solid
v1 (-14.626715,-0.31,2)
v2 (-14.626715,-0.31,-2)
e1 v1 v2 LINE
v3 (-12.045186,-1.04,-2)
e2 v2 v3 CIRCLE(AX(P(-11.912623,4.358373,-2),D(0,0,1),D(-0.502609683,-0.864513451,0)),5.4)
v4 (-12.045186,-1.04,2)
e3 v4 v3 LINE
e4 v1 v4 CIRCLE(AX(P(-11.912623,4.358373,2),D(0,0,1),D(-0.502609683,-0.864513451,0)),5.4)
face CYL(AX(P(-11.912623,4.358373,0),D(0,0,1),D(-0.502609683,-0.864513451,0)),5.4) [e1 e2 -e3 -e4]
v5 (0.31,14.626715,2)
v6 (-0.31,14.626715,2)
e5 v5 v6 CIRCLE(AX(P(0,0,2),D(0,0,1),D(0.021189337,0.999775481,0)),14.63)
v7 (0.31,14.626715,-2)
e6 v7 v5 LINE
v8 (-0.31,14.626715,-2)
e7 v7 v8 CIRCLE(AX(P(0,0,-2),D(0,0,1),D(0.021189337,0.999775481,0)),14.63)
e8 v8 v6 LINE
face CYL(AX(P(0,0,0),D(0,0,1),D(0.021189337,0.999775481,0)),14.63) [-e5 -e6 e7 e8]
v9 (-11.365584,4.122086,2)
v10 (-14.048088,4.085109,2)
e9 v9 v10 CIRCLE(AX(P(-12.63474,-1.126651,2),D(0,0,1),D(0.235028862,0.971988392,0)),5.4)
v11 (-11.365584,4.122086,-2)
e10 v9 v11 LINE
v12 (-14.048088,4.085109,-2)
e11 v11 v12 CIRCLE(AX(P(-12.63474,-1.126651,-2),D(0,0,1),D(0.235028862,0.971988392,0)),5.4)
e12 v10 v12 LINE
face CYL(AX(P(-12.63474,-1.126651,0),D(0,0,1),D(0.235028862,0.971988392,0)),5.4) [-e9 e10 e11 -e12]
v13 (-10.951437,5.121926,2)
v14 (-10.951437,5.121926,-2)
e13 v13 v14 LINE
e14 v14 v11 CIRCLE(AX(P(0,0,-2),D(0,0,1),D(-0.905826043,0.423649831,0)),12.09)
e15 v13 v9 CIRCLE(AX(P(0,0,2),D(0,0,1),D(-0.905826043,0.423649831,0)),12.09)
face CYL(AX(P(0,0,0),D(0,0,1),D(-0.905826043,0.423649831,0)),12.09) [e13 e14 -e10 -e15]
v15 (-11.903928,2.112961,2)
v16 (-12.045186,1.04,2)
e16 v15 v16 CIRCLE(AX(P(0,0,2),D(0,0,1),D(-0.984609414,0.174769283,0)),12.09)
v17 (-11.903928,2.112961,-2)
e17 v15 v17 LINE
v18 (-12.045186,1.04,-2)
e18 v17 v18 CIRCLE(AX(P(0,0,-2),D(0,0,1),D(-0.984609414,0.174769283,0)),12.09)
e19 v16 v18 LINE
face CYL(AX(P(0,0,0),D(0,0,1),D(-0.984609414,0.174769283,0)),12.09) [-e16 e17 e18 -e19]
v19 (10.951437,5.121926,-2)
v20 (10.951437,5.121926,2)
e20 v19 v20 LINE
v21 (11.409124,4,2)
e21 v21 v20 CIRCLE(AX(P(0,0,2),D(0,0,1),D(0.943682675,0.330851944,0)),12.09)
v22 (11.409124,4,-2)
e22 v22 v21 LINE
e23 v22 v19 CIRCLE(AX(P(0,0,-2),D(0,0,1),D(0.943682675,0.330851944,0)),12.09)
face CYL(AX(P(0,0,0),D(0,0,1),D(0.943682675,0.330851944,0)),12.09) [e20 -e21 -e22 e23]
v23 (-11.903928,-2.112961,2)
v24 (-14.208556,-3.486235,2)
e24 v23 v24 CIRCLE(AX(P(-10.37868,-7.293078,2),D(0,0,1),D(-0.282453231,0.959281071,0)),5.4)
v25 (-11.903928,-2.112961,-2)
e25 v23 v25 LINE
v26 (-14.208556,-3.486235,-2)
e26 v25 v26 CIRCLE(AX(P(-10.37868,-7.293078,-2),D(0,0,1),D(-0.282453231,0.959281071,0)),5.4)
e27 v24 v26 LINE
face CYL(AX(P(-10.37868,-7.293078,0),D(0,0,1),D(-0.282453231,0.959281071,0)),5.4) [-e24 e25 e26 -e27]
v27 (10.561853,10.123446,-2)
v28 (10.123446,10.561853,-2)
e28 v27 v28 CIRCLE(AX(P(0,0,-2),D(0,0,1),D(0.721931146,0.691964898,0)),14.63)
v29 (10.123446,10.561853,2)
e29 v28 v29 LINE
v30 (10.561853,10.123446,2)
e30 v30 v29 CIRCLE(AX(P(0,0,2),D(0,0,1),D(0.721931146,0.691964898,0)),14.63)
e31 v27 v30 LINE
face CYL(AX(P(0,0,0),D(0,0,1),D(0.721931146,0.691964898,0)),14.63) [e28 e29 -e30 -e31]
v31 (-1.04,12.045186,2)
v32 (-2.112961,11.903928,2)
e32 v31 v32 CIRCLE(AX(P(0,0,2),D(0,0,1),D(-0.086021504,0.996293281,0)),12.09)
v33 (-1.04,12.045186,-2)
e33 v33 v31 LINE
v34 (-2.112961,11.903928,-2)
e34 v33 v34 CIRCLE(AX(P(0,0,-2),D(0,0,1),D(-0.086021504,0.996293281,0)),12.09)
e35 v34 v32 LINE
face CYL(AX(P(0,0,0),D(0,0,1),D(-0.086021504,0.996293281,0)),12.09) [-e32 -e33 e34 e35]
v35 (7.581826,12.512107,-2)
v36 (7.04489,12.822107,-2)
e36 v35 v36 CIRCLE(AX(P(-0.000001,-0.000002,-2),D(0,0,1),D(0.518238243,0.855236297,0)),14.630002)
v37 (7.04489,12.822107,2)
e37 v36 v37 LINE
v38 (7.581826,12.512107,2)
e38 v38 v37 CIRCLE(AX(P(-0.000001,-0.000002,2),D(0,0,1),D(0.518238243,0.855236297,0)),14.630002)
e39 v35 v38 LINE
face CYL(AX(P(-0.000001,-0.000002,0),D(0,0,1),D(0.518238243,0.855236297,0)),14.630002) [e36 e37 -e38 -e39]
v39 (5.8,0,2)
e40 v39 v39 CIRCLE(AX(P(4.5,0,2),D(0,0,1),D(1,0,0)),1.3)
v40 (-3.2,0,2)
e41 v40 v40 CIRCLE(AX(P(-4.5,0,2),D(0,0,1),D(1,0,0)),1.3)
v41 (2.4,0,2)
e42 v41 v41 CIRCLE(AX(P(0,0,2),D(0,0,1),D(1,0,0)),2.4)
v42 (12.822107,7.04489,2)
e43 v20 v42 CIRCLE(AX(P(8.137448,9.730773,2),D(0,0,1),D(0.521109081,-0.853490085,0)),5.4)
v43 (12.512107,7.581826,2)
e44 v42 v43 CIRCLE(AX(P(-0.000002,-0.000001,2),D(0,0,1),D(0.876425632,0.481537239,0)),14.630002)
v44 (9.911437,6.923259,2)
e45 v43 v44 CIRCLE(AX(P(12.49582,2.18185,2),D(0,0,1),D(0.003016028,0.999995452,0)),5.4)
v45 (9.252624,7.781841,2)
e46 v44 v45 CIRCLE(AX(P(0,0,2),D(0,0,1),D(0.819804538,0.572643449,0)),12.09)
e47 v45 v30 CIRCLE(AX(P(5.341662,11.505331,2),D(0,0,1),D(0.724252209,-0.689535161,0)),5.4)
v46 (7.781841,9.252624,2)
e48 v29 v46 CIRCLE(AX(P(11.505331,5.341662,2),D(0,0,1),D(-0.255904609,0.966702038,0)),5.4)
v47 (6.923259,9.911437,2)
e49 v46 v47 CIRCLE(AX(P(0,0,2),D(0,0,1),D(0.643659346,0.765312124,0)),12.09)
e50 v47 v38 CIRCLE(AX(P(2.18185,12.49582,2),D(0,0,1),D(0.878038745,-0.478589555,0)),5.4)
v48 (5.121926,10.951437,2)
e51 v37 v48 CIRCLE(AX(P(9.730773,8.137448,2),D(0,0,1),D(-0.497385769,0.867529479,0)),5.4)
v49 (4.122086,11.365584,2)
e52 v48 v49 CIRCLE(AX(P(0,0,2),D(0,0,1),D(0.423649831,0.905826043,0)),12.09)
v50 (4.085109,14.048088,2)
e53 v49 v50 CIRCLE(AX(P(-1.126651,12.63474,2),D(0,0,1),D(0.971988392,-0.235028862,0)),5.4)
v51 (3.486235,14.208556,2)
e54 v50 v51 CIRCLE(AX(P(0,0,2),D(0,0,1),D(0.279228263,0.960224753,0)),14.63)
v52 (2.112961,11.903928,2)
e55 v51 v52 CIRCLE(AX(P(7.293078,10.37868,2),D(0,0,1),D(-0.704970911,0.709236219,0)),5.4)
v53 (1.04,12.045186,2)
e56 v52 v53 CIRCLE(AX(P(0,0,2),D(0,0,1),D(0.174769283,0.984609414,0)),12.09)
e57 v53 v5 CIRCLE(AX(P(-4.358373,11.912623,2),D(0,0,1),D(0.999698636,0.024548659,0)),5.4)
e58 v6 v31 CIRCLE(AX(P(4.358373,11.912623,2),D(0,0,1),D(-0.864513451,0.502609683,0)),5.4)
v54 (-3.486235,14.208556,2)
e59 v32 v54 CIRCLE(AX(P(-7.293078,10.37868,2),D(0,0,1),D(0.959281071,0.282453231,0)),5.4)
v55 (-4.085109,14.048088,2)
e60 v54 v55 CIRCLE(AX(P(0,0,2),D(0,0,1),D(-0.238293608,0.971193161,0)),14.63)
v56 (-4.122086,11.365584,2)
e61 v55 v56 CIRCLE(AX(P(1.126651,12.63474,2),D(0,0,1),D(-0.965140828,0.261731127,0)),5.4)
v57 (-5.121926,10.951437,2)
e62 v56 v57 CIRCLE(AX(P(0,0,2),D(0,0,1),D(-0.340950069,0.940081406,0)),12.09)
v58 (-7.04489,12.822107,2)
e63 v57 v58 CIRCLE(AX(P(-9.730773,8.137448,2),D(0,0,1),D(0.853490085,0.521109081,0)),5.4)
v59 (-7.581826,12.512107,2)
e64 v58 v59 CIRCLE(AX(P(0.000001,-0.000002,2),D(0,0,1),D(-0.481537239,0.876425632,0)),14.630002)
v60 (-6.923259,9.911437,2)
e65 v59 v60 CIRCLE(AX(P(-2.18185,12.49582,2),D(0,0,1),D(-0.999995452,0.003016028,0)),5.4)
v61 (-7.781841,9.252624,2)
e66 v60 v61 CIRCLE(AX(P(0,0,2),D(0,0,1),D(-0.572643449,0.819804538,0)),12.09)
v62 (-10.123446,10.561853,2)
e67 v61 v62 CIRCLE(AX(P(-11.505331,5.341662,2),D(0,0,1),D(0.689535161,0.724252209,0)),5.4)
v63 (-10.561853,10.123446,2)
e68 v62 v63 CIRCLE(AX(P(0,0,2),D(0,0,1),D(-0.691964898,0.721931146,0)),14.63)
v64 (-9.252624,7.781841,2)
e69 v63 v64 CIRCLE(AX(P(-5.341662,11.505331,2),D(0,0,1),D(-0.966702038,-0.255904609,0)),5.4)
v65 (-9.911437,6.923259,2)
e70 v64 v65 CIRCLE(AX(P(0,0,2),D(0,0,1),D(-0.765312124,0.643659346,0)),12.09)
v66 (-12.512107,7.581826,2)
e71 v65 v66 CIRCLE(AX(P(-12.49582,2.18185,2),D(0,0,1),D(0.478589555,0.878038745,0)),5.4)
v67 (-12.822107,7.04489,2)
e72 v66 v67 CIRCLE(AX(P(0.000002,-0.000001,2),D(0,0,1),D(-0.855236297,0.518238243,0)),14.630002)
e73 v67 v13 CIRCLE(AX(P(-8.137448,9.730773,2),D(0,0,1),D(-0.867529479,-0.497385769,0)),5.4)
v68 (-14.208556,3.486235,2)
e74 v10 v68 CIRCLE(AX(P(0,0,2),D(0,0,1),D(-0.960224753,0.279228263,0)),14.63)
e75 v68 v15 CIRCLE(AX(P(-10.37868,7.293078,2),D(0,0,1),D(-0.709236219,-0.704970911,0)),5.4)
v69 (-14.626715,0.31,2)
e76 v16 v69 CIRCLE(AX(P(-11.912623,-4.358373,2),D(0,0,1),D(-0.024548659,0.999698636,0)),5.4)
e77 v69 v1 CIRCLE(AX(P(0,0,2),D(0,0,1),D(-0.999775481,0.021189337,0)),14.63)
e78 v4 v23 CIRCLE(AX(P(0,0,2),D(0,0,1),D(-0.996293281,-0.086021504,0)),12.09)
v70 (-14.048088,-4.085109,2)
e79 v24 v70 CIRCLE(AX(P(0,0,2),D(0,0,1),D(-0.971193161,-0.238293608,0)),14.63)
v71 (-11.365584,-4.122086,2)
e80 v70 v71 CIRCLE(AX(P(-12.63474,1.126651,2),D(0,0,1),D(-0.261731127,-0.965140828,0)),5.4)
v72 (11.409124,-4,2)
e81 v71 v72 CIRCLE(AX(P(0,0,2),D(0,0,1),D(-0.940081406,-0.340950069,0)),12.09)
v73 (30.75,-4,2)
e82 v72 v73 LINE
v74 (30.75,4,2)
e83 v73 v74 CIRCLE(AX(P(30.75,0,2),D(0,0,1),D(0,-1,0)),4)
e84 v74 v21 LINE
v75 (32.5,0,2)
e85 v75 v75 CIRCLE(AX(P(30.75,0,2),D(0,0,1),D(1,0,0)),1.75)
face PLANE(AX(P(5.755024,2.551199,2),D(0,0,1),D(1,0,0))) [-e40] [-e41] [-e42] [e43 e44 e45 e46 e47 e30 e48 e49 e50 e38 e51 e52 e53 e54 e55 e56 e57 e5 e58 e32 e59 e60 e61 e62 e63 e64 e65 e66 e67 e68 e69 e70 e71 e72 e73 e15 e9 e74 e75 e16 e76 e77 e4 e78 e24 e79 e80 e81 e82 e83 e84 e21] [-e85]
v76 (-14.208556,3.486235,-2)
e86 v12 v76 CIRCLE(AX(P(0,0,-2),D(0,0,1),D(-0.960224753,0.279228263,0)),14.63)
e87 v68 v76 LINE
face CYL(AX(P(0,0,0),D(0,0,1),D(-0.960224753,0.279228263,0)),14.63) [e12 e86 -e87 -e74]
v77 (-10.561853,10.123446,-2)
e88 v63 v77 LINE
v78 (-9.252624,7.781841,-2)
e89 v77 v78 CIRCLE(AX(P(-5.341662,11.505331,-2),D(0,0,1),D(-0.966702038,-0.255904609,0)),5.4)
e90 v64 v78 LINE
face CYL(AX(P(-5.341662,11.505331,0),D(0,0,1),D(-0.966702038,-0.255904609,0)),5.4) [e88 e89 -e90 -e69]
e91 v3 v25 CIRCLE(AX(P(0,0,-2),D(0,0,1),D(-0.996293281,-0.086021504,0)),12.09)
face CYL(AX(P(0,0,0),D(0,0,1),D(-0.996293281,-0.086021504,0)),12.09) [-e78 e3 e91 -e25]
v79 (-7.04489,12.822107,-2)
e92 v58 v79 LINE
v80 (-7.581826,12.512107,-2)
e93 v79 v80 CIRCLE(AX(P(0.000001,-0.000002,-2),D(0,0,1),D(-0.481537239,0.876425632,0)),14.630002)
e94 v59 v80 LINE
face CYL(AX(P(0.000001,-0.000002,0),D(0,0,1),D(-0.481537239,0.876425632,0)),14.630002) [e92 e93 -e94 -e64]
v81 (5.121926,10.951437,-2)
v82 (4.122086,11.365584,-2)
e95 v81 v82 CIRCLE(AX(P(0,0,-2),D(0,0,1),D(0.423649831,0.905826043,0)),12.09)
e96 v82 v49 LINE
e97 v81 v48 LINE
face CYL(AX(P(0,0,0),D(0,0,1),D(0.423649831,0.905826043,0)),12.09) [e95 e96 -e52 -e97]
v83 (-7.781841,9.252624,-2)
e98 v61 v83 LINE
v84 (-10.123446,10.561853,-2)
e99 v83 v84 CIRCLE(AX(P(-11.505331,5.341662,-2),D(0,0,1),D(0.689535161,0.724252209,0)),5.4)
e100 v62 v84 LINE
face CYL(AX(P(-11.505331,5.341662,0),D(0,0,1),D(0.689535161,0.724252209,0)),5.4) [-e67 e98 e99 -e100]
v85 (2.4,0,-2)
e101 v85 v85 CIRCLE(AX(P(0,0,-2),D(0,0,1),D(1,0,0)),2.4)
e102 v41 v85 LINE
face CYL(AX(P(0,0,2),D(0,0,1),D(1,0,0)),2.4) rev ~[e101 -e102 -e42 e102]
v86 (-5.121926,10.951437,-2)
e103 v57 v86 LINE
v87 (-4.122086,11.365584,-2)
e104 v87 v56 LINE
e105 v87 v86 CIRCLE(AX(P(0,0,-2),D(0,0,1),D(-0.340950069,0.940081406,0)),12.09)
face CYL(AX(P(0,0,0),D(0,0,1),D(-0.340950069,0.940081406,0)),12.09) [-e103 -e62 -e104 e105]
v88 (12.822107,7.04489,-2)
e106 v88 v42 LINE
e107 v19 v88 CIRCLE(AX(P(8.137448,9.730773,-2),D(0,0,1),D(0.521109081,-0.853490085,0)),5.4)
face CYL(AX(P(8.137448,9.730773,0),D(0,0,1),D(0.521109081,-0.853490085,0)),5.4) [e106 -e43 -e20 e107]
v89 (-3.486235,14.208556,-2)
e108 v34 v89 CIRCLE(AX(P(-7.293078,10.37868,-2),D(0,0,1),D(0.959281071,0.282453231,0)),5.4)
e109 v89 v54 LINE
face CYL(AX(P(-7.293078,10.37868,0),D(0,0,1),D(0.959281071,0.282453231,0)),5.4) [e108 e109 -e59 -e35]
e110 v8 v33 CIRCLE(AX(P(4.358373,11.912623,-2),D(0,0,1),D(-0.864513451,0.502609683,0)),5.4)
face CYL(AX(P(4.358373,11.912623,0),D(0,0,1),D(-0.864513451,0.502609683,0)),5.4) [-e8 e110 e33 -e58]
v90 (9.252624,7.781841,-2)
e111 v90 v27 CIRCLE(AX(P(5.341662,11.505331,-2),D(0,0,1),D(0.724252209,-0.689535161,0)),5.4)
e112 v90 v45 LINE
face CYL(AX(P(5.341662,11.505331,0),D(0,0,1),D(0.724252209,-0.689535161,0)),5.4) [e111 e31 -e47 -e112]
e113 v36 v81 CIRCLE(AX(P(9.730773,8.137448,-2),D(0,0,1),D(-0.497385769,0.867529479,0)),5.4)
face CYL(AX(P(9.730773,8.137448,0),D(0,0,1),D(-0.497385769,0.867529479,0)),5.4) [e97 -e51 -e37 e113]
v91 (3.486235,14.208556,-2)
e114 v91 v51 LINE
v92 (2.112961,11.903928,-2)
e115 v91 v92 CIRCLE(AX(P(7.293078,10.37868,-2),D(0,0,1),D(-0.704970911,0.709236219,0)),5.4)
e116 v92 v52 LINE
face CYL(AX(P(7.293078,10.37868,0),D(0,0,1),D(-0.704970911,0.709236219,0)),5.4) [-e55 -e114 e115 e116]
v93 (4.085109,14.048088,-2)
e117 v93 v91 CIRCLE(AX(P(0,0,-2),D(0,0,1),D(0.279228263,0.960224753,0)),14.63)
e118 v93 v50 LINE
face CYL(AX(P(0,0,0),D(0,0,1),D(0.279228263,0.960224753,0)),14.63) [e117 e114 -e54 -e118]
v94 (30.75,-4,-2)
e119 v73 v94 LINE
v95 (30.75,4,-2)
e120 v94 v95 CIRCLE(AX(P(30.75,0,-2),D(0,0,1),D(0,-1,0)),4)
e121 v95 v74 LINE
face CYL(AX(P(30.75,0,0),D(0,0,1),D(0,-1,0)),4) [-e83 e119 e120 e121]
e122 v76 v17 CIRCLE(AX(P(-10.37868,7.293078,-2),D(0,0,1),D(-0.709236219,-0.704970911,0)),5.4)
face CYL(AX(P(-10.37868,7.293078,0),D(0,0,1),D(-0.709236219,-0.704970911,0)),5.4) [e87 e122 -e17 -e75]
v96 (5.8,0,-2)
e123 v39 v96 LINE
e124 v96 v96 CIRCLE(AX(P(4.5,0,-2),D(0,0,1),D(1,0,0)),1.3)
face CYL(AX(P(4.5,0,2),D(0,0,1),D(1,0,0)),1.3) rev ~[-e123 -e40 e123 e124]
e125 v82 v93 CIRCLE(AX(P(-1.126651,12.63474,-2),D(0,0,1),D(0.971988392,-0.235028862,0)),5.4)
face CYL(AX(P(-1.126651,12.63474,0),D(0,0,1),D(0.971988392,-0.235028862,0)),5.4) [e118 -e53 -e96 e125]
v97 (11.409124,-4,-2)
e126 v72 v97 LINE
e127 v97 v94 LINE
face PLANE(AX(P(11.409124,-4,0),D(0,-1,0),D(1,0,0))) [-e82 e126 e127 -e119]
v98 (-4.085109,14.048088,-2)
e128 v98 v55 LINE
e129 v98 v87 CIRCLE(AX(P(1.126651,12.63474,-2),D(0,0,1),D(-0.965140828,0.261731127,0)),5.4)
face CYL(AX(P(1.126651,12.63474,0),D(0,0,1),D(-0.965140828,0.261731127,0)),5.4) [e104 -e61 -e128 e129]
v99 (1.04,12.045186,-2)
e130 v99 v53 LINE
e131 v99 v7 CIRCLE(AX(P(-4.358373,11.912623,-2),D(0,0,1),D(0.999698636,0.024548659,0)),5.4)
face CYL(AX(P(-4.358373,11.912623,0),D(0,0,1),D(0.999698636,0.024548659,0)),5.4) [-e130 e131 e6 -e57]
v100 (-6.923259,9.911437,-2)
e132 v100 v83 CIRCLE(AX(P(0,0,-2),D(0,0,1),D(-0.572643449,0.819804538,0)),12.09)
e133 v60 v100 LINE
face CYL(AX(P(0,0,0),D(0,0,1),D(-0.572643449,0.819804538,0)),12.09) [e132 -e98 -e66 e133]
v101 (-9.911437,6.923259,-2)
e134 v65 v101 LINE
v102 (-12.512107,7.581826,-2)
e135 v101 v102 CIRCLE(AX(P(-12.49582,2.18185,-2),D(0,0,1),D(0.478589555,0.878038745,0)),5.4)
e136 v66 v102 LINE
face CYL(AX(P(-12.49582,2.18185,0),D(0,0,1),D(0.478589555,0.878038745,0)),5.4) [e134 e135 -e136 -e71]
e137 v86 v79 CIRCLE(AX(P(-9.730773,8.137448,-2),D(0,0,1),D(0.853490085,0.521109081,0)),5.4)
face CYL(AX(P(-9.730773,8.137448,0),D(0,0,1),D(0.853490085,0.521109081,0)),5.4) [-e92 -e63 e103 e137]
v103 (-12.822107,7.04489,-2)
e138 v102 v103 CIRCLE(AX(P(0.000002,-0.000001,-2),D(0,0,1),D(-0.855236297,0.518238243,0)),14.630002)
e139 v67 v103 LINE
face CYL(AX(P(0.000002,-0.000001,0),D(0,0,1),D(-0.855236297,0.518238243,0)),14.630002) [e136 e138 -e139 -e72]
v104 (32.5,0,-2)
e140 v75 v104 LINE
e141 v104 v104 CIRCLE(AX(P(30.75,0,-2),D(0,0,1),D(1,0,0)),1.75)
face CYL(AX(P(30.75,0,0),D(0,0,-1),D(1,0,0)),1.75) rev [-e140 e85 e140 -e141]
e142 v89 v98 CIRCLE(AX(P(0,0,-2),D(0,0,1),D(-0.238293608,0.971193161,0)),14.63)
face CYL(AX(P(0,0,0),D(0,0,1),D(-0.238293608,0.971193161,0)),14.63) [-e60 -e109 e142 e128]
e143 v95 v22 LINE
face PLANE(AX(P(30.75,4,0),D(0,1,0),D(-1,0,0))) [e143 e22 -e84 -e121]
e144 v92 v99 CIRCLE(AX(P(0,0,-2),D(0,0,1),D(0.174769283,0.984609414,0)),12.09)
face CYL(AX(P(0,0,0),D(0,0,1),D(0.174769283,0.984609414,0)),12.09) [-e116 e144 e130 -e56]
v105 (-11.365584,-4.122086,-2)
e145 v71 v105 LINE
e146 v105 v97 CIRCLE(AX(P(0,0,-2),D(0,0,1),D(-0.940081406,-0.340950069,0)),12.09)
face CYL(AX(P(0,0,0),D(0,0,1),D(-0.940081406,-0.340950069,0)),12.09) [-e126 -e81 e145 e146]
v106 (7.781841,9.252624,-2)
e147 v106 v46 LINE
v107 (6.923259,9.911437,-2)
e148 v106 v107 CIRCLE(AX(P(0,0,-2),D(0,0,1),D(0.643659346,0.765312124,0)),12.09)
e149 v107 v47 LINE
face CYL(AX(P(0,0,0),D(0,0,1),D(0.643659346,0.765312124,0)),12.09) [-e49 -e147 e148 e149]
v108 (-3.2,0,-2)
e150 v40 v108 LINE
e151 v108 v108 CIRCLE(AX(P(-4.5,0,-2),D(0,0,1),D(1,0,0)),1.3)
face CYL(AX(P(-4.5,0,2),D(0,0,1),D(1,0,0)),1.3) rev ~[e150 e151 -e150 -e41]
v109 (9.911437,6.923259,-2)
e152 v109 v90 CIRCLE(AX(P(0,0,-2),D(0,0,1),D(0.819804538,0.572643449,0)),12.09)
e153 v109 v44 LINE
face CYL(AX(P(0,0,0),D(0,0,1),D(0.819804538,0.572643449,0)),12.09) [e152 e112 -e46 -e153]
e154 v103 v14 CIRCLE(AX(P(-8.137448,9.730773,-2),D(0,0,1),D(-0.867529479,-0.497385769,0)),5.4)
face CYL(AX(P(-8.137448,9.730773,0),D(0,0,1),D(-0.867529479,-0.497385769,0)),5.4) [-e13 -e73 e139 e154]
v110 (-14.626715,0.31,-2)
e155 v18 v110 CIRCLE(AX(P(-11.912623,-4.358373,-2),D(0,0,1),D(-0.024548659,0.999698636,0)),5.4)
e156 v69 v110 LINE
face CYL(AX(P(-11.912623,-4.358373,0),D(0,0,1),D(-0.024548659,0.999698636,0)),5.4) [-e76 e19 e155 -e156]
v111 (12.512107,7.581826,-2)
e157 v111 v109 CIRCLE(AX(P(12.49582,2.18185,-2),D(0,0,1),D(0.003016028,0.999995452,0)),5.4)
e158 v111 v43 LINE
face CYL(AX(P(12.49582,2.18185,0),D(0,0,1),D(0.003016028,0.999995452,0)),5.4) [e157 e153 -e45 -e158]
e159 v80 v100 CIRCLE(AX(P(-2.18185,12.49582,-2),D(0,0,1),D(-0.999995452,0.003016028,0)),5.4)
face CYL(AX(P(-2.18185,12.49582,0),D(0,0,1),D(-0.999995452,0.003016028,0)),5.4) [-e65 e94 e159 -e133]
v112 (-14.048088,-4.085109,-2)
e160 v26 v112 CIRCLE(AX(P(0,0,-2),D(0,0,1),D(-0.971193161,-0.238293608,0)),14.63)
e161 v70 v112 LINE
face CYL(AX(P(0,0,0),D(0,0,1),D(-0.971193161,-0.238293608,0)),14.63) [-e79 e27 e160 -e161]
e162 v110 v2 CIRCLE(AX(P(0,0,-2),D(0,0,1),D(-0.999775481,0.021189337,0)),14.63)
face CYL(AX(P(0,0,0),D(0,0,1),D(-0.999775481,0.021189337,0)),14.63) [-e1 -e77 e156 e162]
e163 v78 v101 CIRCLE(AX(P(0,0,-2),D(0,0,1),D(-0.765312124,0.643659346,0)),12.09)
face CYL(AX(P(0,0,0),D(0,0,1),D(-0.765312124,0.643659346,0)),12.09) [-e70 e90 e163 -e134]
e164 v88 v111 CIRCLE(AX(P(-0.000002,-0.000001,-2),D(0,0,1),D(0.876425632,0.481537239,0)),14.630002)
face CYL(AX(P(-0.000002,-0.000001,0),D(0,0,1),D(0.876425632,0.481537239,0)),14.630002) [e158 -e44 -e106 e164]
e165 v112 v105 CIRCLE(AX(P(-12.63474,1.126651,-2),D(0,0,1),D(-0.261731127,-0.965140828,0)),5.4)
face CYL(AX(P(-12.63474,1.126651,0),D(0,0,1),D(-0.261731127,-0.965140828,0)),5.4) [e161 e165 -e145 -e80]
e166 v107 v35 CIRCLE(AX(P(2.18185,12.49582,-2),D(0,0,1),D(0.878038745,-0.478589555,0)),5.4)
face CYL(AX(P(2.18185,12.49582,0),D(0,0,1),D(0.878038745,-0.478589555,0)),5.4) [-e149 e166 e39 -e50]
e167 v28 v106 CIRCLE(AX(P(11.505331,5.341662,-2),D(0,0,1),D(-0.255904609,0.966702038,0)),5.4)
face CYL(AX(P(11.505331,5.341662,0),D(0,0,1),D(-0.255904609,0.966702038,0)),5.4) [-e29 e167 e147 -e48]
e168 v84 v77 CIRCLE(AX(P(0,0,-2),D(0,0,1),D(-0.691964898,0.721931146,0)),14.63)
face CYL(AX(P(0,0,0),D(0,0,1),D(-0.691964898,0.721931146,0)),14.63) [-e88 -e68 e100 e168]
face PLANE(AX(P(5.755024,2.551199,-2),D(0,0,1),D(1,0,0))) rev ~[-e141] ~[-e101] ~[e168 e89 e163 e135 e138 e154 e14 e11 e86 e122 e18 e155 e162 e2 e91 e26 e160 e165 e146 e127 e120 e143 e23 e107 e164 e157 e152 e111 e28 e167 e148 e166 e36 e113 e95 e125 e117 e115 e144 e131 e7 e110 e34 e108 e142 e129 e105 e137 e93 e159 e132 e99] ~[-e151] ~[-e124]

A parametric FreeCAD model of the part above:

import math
import FreeCAD as App
import Part
import Sketcher

doc = App.newDocument("Part")
body = doc.addObject("PartDesign::Body", "Body")

# Sketch on XY plane
sketch1 = body.newObject("Sketcher::SketchObject", "Sketch")
sketch1.AttachmentSupport = (doc.getObject("XY_Plane"), [""])
sketch1.MapMode = "FlatFace"
sketch1.addGeometry(Part.ArcOfCircle(Part.Circle(App.Vector(30.8, 0, 0), App.Vector(0, 0, 1), 4), math.radians(-90), math.radians(90)), False)
sketch1.addGeometry(Part.LineSegment(App.Vector(30.8, 4, 0), App.Vector(11.4, 4, 0)), False)
sketch1.addGeometry(Part.ArcOfCircle(Part.Circle(App.Vector(0, 0, 0), App.Vector(0, 0, 1), 12.1), math.radians(19.32), math.radians(25.07)), False)
sketch1.addGeometry(Part.ArcOfCircle(Part.Circle(App.Vector(8.1, 9.7, 0), App.Vector(0, 0, 1), 5.4), math.radians(-59), math.radians(-30)), False)
sketch1.addGeometry(Part.ArcOfCircle(Part.Circle(App.Vector(0, 0, 0), App.Vector(0, 0, 1), 14.6), math.radians(28.79), math.radians(31.21)), False)
sketch1.addGeometry(Part.ArcOfCircle(Part.Circle(App.Vector(12.5, 2.2, 0), App.Vector(0, 0, 1), 5.4), math.radians(90), math.radians(119)), False)
sketch1.addGeometry(Part.ArcOfCircle(Part.Circle(App.Vector(0, 0, 0), App.Vector(0, 0, 1), 12.1), math.radians(34.93), math.radians(40.07)), False)
sketch1.addGeometry(Part.ArcOfCircle(Part.Circle(App.Vector(5.3, 11.5, 0), App.Vector(0, 0, 1), 5.4), math.radians(-44), math.radians(-15)), False)
sketch1.addGeometry(Part.ArcOfCircle(Part.Circle(App.Vector(0, 0, 0), App.Vector(0, 0, 1), 14.6), math.radians(43.79), math.radians(46.21)), False)
sketch1.addGeometry(Part.ArcOfCircle(Part.Circle(App.Vector(11.5, 5.3, 0), App.Vector(0, 0, 1), 5.4), math.radians(105), math.radians(134)), False)
sketch1.addGeometry(Part.ArcOfCircle(Part.Circle(App.Vector(0, 0, 0), App.Vector(0, 0, 1), 12.1), math.radians(49.93), math.radians(55.07)), False)
sketch1.addGeometry(Part.ArcOfCircle(Part.Circle(App.Vector(2.2, 12.5, 0), App.Vector(0, 0, 1), 5.4), math.radians(-29), math.radians(0)), False)
sketch1.addGeometry(Part.ArcOfCircle(Part.Circle(App.Vector(0, 0, 0), App.Vector(0, 0, 1), 14.6), math.radians(58.79), math.radians(61.21)), False)
sketch1.addGeometry(Part.ArcOfCircle(Part.Circle(App.Vector(9.7, 8.1, 0), App.Vector(0, 0, 1), 5.4), math.radians(120), math.radians(149)), False)
sketch1.addGeometry(Part.ArcOfCircle(Part.Circle(App.Vector(0, 0, 0), App.Vector(0, 0, 1), 12.1), math.radians(64.93), math.radians(70.07)), False)
sketch1.addGeometry(Part.ArcOfCircle(Part.Circle(App.Vector(-1.1, 12.6, 0), App.Vector(0, 0, 1), 5.4), math.radians(-14), math.radians(15)), False)
sketch1.addGeometry(Part.ArcOfCircle(Part.Circle(App.Vector(0, 0, 0), App.Vector(0, 0, 1), 14.6), math.radians(73.79), math.radians(76.21)), False)
sketch1.addGeometry(Part.ArcOfCircle(Part.Circle(App.Vector(7.3, 10.4, 0), App.Vector(0, 0, 1), 5.4), math.radians(135), math.radians(164)), False)
sketch1.addGeometry(Part.ArcOfCircle(Part.Circle(App.Vector(0, 0, 0), App.Vector(0, 0, 1), 12.1), math.radians(79.93), math.radians(85.07)), False)
sketch1.addGeometry(Part.ArcOfCircle(Part.Circle(App.Vector(-4.4, 11.9, 0), App.Vector(0, 0, 1), 5.4), math.radians(1), math.radians(30)), False)
sketch1.addGeometry(Part.ArcOfCircle(Part.Circle(App.Vector(0, 0, 0), App.Vector(0, 0, 1), 14.6), math.radians(88.79), math.radians(91.21)), False)
sketch1.addGeometry(Part.ArcOfCircle(Part.Circle(App.Vector(4.4, 11.9, 0), App.Vector(0, 0, 1), 5.4), math.radians(150), math.radians(179)), False)
sketch1.addGeometry(Part.ArcOfCircle(Part.Circle(App.Vector(0, 0, 0), App.Vector(0, 0, 1), 12.1), math.radians(94.93), math.radians(100.07)), False)
sketch1.addGeometry(Part.ArcOfCircle(Part.Circle(App.Vector(-7.3, 10.4, 0), App.Vector(0, 0, 1), 5.4), math.radians(16), math.radians(45)), False)
sketch1.addGeometry(Part.ArcOfCircle(Part.Circle(App.Vector(0, 0, 0), App.Vector(0, 0, 1), 14.6), math.radians(103.79), math.radians(106.21)), False)
sketch1.addGeometry(Part.ArcOfCircle(Part.Circle(App.Vector(1.1, 12.6, 0), App.Vector(0, 0, 1), 5.4), math.radians(165), math.radians(194)), False)
sketch1.addGeometry(Part.ArcOfCircle(Part.Circle(App.Vector(0, 0, 0), App.Vector(0, 0, 1), 12.1), math.radians(109.93), math.radians(115.07)), False)
sketch1.addGeometry(Part.ArcOfCircle(Part.Circle(App.Vector(-9.7, 8.1, 0), App.Vector(0, 0, 1), 5.4), math.radians(31), math.radians(60)), False)
sketch1.addGeometry(Part.ArcOfCircle(Part.Circle(App.Vector(0, 0, 0), App.Vector(0, 0, 1), 14.6), math.radians(118.79), math.radians(121.21)), False)
sketch1.addGeometry(Part.ArcOfCircle(Part.Circle(App.Vector(-2.2, 12.5, 0), App.Vector(0, 0, 1), 5.4), math.radians(180), math.radians(209)), False)
sketch1.addGeometry(Part.ArcOfCircle(Part.Circle(App.Vector(0, 0, 0), App.Vector(0, 0, 1), 12.1), math.radians(124.93), math.radians(130.07)), False)
sketch1.addGeometry(Part.ArcOfCircle(Part.Circle(App.Vector(-11.5, 5.3, 0), App.Vector(0, 0, 1), 5.4), math.radians(46), math.radians(75)), False)
sketch1.addGeometry(Part.ArcOfCircle(Part.Circle(App.Vector(0, 0, 0), App.Vector(0, 0, 1), 14.6), math.radians(133.79), math.radians(136.21)), False)
sketch1.addGeometry(Part.ArcOfCircle(Part.Circle(App.Vector(-5.3, 11.5, 0), App.Vector(0, 0, 1), 5.4), math.radians(-165), math.radians(-136)), False)
sketch1.addGeometry(Part.ArcOfCircle(Part.Circle(App.Vector(0, 0, 0), App.Vector(0, 0, 1), 12.1), math.radians(139.93), math.radians(145.07)), False)
sketch1.addGeometry(Part.ArcOfCircle(Part.Circle(App.Vector(-12.5, 2.2, 0), App.Vector(0, 0, 1), 5.4), math.radians(61), math.radians(90)), False)
sketch1.addGeometry(Part.ArcOfCircle(Part.Circle(App.Vector(0, 0, 0), App.Vector(0, 0, 1), 14.6), math.radians(148.79), math.radians(151.21)), False)
sketch1.addGeometry(Part.ArcOfCircle(Part.Circle(App.Vector(-8.1, 9.7, 0), App.Vector(0, 0, 1), 5.4), math.radians(-150), math.radians(-121)), False)
sketch1.addGeometry(Part.ArcOfCircle(Part.Circle(App.Vector(0, 0, 0), App.Vector(0, 0, 1), 12.1), math.radians(154.93), math.radians(160.07)), False)
sketch1.addGeometry(Part.ArcOfCircle(Part.Circle(App.Vector(-12.6, -1.1, 0), App.Vector(0, 0, 1), 5.4), math.radians(76), math.radians(105)), False)
sketch1.addGeometry(Part.ArcOfCircle(Part.Circle(App.Vector(0, 0, 0), App.Vector(0, 0, 1), 14.6), math.radians(163.79), math.radians(166.21)), False)
sketch1.addGeometry(Part.ArcOfCircle(Part.Circle(App.Vector(-10.4, 7.3, 0), App.Vector(0, 0, 1), 5.4), math.radians(-135), math.radians(-106)), False)
sketch1.addGeometry(Part.ArcOfCircle(Part.Circle(App.Vector(0, 0, 0), App.Vector(0, 0, 1), 12.1), math.radians(169.93), math.radians(175.07)), False)
sketch1.addGeometry(Part.ArcOfCircle(Part.Circle(App.Vector(-11.9, -4.4, 0), App.Vector(0, 0, 1), 5.4), math.radians(91), math.radians(120)), False)
sketch1.addGeometry(Part.ArcOfCircle(Part.Circle(App.Vector(0, 0, 0), App.Vector(0, 0, 1), 14.6), math.radians(178.79), math.radians(181.21)), False)
sketch1.addGeometry(Part.ArcOfCircle(Part.Circle(App.Vector(-11.9, 4.4, 0), App.Vector(0, 0, 1), 5.4), math.radians(-120), math.radians(-91)), False)
sketch1.addGeometry(Part.ArcOfCircle(Part.Circle(App.Vector(0, 0, 0), App.Vector(0, 0, 1), 12.1), math.radians(-175.07), math.radians(-169.93)), False)
sketch1.addGeometry(Part.ArcOfCircle(Part.Circle(App.Vector(-10.4, -7.3, 0), App.Vector(0, 0, 1), 5.4), math.radians(106), math.radians(135)), False)
sketch1.addGeometry(Part.ArcOfCircle(Part.Circle(App.Vector(0, 0, 0), App.Vector(0, 0, 1), 14.6), math.radians(-166.21), math.radians(-163.79)), False)
sketch1.addGeometry(Part.ArcOfCircle(Part.Circle(App.Vector(-12.6, 1.1, 0), App.Vector(0, 0, 1), 5.4), math.radians(-105), math.radians(-76)), False)
sketch1.addGeometry(Part.ArcOfCircle(Part.Circle(App.Vector(0, 0, 0), App.Vector(0, 0, 1), 12.1), math.radians(-160), math.radians(-19)), False)
sketch1.addGeometry(Part.LineSegment(App.Vector(11.4, -4, 0), App.Vector(30.8, -4, 0)), False)
sketch1.addGeometry(Part.Circle(App.Vector(0, 0, 0), App.Vector(0, 0, 1), 1.8), False)
sketch1.addGeometry(Part.Circle(App.Vector(30.8, 0, 0), App.Vector(0, 0, 1), 1.8), False)
sketch1.addConstraint(Sketcher.Constraint("Tangent", 0, 2, 1, 1))
sketch1.addConstraint(Sketcher.Constraint("Coincident", 1, 2, 2, 1))
sketch1.addConstraint(Sketcher.Constraint("Coincident", 2, 2, 3, 1))
sketch1.addConstraint(Sketcher.Constraint("Coincident", 3, 2, 4, 1))
sketch1.addConstraint(Sketcher.Constraint("Coincident", 4, 2, 5, 1))
sketch1.addConstraint(Sketcher.Constraint("Coincident", 5, 2, 6, 1))
sketch1.addConstraint(Sketcher.Constraint("Coincident", 6, 2, 7, 1))
sketch1.addConstraint(Sketcher.Constraint("Coincident", 7, 2, 8, 1))
sketch1.addConstraint(Sketcher.Constraint("Coincident", 8, 2, 9, 1))
sketch1.addConstraint(Sketcher.Constraint("Coincident", 9, 2, 10, 1))
sketch1.addConstraint(Sketcher.Constraint("Coincident", 10, 2, 11, 1))
sketch1.addConstraint(Sketcher.Constraint("Coincident", 11, 2, 12, 1))
sketch1.addConstraint(Sketcher.Constraint("Coincident", 12, 2, 13, 1))
sketch1.addConstraint(Sketcher.Constraint("Coincident", 13, 2, 14, 1))
sketch1.addConstraint(Sketcher.Constraint("Coincident", 14, 2, 15, 1))
sketch1.addConstraint(Sketcher.Constraint("Coincident", 15, 2, 16, 1))
sketch1.addConstraint(Sketcher.Constraint("Coincident", 16, 2, 17, 1))
sketch1.addConstraint(Sketcher.Constraint("Coincident", 17, 2, 18, 1))
sketch1.addConstraint(Sketcher.Constraint("Coincident", 18, 2, 19, 1))
sketch1.addConstraint(Sketcher.Constraint("Coincident", 19, 2, 20, 1))
sketch1.addConstraint(Sketcher.Constraint("Coincident", 20, 2, 21, 1))
sketch1.addConstraint(Sketcher.Constraint("Coincident", 21, 2, 22, 1))
sketch1.addConstraint(Sketcher.Constraint("Coincident", 22, 2, 23, 1))
sketch1.addConstraint(Sketcher.Constraint("Coincident", 23, 2, 24, 1))
sketch1.addConstraint(Sketcher.Constraint("Coincident", 24, 2, 25, 1))
sketch1.addConstraint(Sketcher.Constraint("Coincident", 25, 2, 26, 1))
sketch1.addConstraint(Sketcher.Constraint("Coincident", 26, 2, 27, 1))
sketch1.addConstraint(Sketcher.Constraint("Coincident", 27, 2, 28, 1))
sketch1.addConstraint(Sketcher.Constraint("Coincident", 28, 2, 29, 1))
sketch1.addConstraint(Sketcher.Constraint("Coincident", 29, 2, 30, 1))
sketch1.addConstraint(Sketcher.Constraint("Coincident", 30, 2, 31, 1))
sketch1.addConstraint(Sketcher.Constraint("Coincident", 31, 2, 32, 1))
sketch1.addConstraint(Sketcher.Constraint("Coincident", 32, 2, 33, 1))
sketch1.addConstraint(Sketcher.Constraint("Coincident", 33, 2, 34, 1))
sketch1.addConstraint(Sketcher.Constraint("Coincident", 34, 2, 35, 1))
sketch1.addConstraint(Sketcher.Constraint("Coincident", 35, 2, 36, 1))
sketch1.addConstraint(Sketcher.Constraint("Coincident", 36, 2, 37, 1))
sketch1.addConstraint(Sketcher.Constraint("Coincident", 37, 2, 38, 1))
sketch1.addConstraint(Sketcher.Constraint("Coincident", 38, 2, 39, 1))
sketch1.addConstraint(Sketcher.Constraint("Coincident", 39, 2, 40, 1))
sketch1.addConstraint(Sketcher.Constraint("Coincident", 40, 2, 41, 1))
sketch1.addConstraint(Sketcher.Constraint("Coincident", 41, 2, 42, 1))
sketch1.addConstraint(Sketcher.Constraint("Coincident", 42, 2, 43, 1))
sketch1.addConstraint(Sketcher.Constraint("Coincident", 43, 2, 44, 1))
sketch1.addConstraint(Sketcher.Constraint("Coincident", 44, 2, 45, 1))
sketch1.addConstraint(Sketcher.Constraint("Coincident", 45, 2, 46, 1))
sketch1.addConstraint(Sketcher.Constraint("Coincident", 46, 2, 47, 1))
sketch1.addConstraint(Sketcher.Constraint("Coincident", 47, 2, 48, 1))
sketch1.addConstraint(Sketcher.Constraint("Coincident", 48, 2, 49, 1))
sketch1.addConstraint(Sketcher.Constraint("Coincident", 49, 2, 50, 1))
sketch1.addConstraint(Sketcher.Constraint("Coincident", 50, 2, 51, 1))
sketch1.addConstraint(Sketcher.Constraint("Tangent", 51, 2, 0, 1))
sketch1.addConstraint(Sketcher.Constraint("Horizontal", 1))
sketch1.addConstraint(Sketcher.Constraint("Horizontal", 51))
sketch1.addConstraint(Sketcher.Constraint("Coincident", 2, 3, -1, 1))
sketch1.addConstraint(Sketcher.Constraint("Coincident", 4, 3, -1, 1))
sketch1.addConstraint(Sketcher.Constraint("Coincident", 6, 3, -1, 1))
sketch1.addConstraint(Sketcher.Constraint("Coincident", 8, 3, -1, 1))
sketch1.addConstraint(Sketcher.Constraint("Coincident", 10, 3, -1, 1))
sketch1.addConstraint(Sketcher.Constraint("Coincident", 12, 3, -1, 1))
sketch1.addConstraint(Sketcher.Constraint("Coincident", 14, 3, -1, 1))
sketch1.addConstraint(Sketcher.Constraint("Coincident", 16, 3, -1, 1))
sketch1.addConstraint(Sketcher.Constraint("Coincident", 18, 3, -1, 1))
sketch1.addConstraint(Sketcher.Constraint("Coincident", 20, 3, -1, 1))
sketch1.addConstraint(Sketcher.Constraint("Coincident", 22, 3, -1, 1))
sketch1.addConstraint(Sketcher.Constraint("Coincident", 24, 3, -1, 1))
sketch1.addConstraint(Sketcher.Constraint("Coincident", 26, 3, -1, 1))
sketch1.addConstraint(Sketcher.Constraint("Coincident", 28, 3, -1, 1))
sketch1.addConstraint(Sketcher.Constraint("Coincident", 30, 3, -1, 1))
sketch1.addConstraint(Sketcher.Constraint("Coincident", 32, 3, -1, 1))
sketch1.addConstraint(Sketcher.Constraint("Coincident", 34, 3, -1, 1))
sketch1.addConstraint(Sketcher.Constraint("Coincident", 36, 3, -1, 1))
sketch1.addConstraint(Sketcher.Constraint("Coincident", 38, 3, -1, 1))
sketch1.addConstraint(Sketcher.Constraint("Coincident", 40, 3, -1, 1))
sketch1.addConstraint(Sketcher.Constraint("Coincident", 42, 3, -1, 1))
sketch1.addConstraint(Sketcher.Constraint("Coincident", 44, 3, -1, 1))
sketch1.addConstraint(Sketcher.Constraint("Coincident", 46, 3, -1, 1))
sketch1.addConstraint(Sketcher.Constraint("Coincident", 48, 3, -1, 1))
sketch1.addConstraint(Sketcher.Constraint("Coincident", 50, 3, -1, 1))
sketch1.addConstraint(Sketcher.Constraint("Coincident", 52, 3, -1, 1))
sketch1.addConstraint(Sketcher.Constraint("Coincident", 53, 3, 0, 3))
sketch1.addConstraint(Sketcher.Constraint("Equal", 3, 5))
sketch1.addConstraint(Sketcher.Constraint("Equal", 2, 6))
sketch1.addConstraint(Sketcher.Constraint("Equal", 5, 7))
sketch1.addConstraint(Sketcher.Constraint("Equal", 7, 9))
sketch1.addConstraint(Sketcher.Constraint("Equal", 6, 10))
sketch1.addConstraint(Sketcher.Constraint("Equal", 9, 11))
sketch1.addConstraint(Sketcher.Constraint("Equal", 4, 12))
sketch1.addConstraint(Sketcher.Constraint("Equal", 11, 13))
sketch1.addConstraint(Sketcher.Constraint("Equal", 10, 14))
sketch1.addConstraint(Sketcher.Constraint("Equal", 13, 15))
sketch1.addConstraint(Sketcher.Constraint("Equal", 12, 16))
sketch1.addConstraint(Sketcher.Constraint("Equal", 15, 17))
sketch1.addConstraint(Sketcher.Constraint("Equal", 14, 18))
sketch1.addConstraint(Sketcher.Constraint("Equal", 17, 19))
sketch1.addConstraint(Sketcher.Constraint("Equal", 16, 20))
sketch1.addConstraint(Sketcher.Constraint("Equal", 19, 21))
sketch1.addConstraint(Sketcher.Constraint("Equal", 18, 22))
sketch1.addConstraint(Sketcher.Constraint("Equal", 21, 23))
sketch1.addConstraint(Sketcher.Constraint("Equal", 20, 24))
sketch1.addConstraint(Sketcher.Constraint("Equal", 23, 25))
sketch1.addConstraint(Sketcher.Constraint("Equal", 22, 26))
sketch1.addConstraint(Sketcher.Constraint("Equal", 25, 27))
sketch1.addConstraint(Sketcher.Constraint("Equal", 24, 28))
sketch1.addConstraint(Sketcher.Constraint("Equal", 27, 29))
sketch1.addConstraint(Sketcher.Constraint("Equal", 26, 30))
sketch1.addConstraint(Sketcher.Constraint("Equal", 29, 31))
sketch1.addConstraint(Sketcher.Constraint("Equal", 24, 32))
sketch1.addConstraint(Sketcher.Constraint("Equal", 31, 33))
sketch1.addConstraint(Sketcher.Constraint("Equal", 30, 34))
sketch1.addConstraint(Sketcher.Constraint("Equal", 33, 35))
sketch1.addConstraint(Sketcher.Constraint("Equal", 28, 36))
sketch1.addConstraint(Sketcher.Constraint("Equal", 35, 37))
sketch1.addConstraint(Sketcher.Constraint("Equal", 34, 38))
sketch1.addConstraint(Sketcher.Constraint("Equal", 37, 39))
sketch1.addConstraint(Sketcher.Constraint("Equal", 36, 40))
sketch1.addConstraint(Sketcher.Constraint("Equal", 39, 41))
sketch1.addConstraint(Sketcher.Constraint("Equal", 38, 42))
sketch1.addConstraint(Sketcher.Constraint("Equal", 41, 43))
sketch1.addConstraint(Sketcher.Constraint("Equal", 40, 44))
sketch1.addConstraint(Sketcher.Constraint("Equal", 43, 45))
sketch1.addConstraint(Sketcher.Constraint("Equal", 42, 46))
sketch1.addConstraint(Sketcher.Constraint("Equal", 45, 47))
sketch1.addConstraint(Sketcher.Constraint("Equal", 44, 48))
sketch1.addConstraint(Sketcher.Constraint("Equal", 47, 49))
sketch1.addConstraint(Sketcher.Constraint("Equal", 46, 50))
sketch1.addConstraint(Sketcher.Constraint("Equal", 52, 53))
sketch1.addConstraint(Sketcher.Constraint("Symmetric", 19, 3, 21, 3, -2))
sketch1.addConstraint(Sketcher.Constraint("Symmetric", 17, 3, 23, 3, -2))
sketch1.addConstraint(Sketcher.Constraint("Symmetric", 15, 3, 25, 3, -2))
sketch1.addConstraint(Sketcher.Constraint("Symmetric", 13, 3, 27, 3, -2))
sketch1.addConstraint(Sketcher.Constraint("Symmetric", 11, 3, 29, 3, -2))
sketch1.addConstraint(Sketcher.Constraint("Symmetric", 9, 3, 31, 3, -2))
sketch1.addConstraint(Sketcher.Constraint("Symmetric", 7, 3, 33, 3, -2))
sketch1.addConstraint(Sketcher.Constraint("Symmetric", 5, 3, 35, 3, -2))
sketch1.addConstraint(Sketcher.Constraint("Symmetric", 3, 3, 37, 3, -2))
sketch1.addConstraint(Sketcher.Constraint("Symmetric", 43, 3, 45, 3, -1))
sketch1.addConstraint(Sketcher.Constraint("Symmetric", 41, 3, 47, 3, -1))
sketch1.addConstraint(Sketcher.Constraint("Symmetric", 39, 3, 49, 3, -1))
sketch1.addConstraint(Sketcher.Constraint("PointOnObject", 0, 3, -1))
sketch1.addConstraint(Sketcher.Constraint("Horizontal", 8, 2, 31, 2))
sketch1.addConstraint(Sketcher.Constraint("Radius", 0, 4.0))
sketch1.addConstraint(Sketcher.Constraint("Diameter", 52, 3.5))
sketch1.addConstraint(Sketcher.Constraint("Radius", 3, 5.4))
sketch1.addConstraint(Sketcher.Constraint("Radius", 2, 12.09))
sketch1.addConstraint(Sketcher.Constraint("Radius", 4, 14.630002))
sketch1.addConstraint(Sketcher.Constraint("DistanceX", -1, 1, 0, 3, 30.75))
sketch1.addConstraint(Sketcher.Constraint("DistanceX", -1, 1, 18, 2, 1.04))
sketch1.addConstraint(Sketcher.Constraint("DistanceX", -1, 1, 19, 2, 0.31))
sketch1.addConstraint(Sketcher.Constraint("DistanceY", -1, 1, 42, 2, 1.04))
sketch1.addConstraint(Sketcher.Constraint("DistanceY", -1, 1, 43, 2, 0.31))
sketch1.addConstraint(Sketcher.Constraint("DistanceX", -1, 1, 5, 3, 12.49582))
sketch1.addConstraint(Sketcher.Constraint("DistanceY", -1, 1, 5, 3, 2.18185))
sketch1.addConstraint(Sketcher.Constraint("DistanceX", -1, 1, 7, 3, 5.341662))
sketch1.addConstraint(Sketcher.Constraint("DistanceY", -1, 1, 7, 3, 11.505331))
sketch1.addConstraint(Sketcher.Constraint("DistanceX", -1, 1, 9, 3, 11.505331))
sketch1.addConstraint(Sketcher.Constraint("DistanceY", -1, 1, 9, 3, 5.341662))
sketch1.addConstraint(Sketcher.Constraint("DistanceX", -1, 1, 11, 3, 2.18185))
sketch1.addConstraint(Sketcher.Constraint("DistanceY", -1, 1, 11, 3, 12.49582))
sketch1.addConstraint(Sketcher.Constraint("DistanceX", 15, 3, -1, 1, 1.126651))
sketch1.addConstraint(Sketcher.Constraint("DistanceY", -1, 1, 15, 3, 12.63474))
sketch1.addConstraint(Sketcher.Constraint("DistanceX", -1, 1, 17, 3, 7.293078))
sketch1.addConstraint(Sketcher.Constraint("DistanceY", -1, 1, 17, 3, 10.37868))
sketch1.addConstraint(Sketcher.Constraint("DistanceX", 39, 3, -1, 1, 12.63474))
sketch1.addConstraint(Sketcher.Constraint("DistanceY", 39, 3, -1, 1, 1.126651))
sketch1.addConstraint(Sketcher.Constraint("DistanceX", 41, 3, -1, 1, 10.37868))
sketch1.addConstraint(Sketcher.Constraint("DistanceY", -1, 1, 41, 3, 7.293078))
sketch1.addConstraint(Sketcher.Constraint("DistanceY", -1, 1, 3, 2, 7.04489))
sketch1.addConstraint(Sketcher.Constraint("DistanceX", -1, 1, 12, 2, 7.04489))
sketch1.addConstraint(Sketcher.Constraint("DistanceX", -1, 1, 3, 3, 8.137448))
sketch1.addConstraint(Sketcher.Constraint("DistanceX", -1, 1, 13, 3, 9.730773))
pad1 = body.newObject("PartDesign::Pad", "Pad")
pad1.Profile = sketch1
pad1.Length = 4
pad1.Midplane = True

# Sketch on XY plane
sketch2 = body.newObject("Sketcher::SketchObject", "Sketch001")
sketch2.AttachmentSupport = (doc.getObject("XY_Plane"), [""])
sketch2.MapMode = "FlatFace"
sketch2.AttachmentOffset = App.Placement(App.Vector(0, 0, 2), App.Rotation())
sketch2.addGeometry(Part.Circle(App.Vector(4.5, 0, 0), App.Vector(0, 0, 1), 1.3), False)
sketch2.addGeometry(Part.Circle(App.Vector(-4.5, 0, 0), App.Vector(0, 0, 1), 1.3), False)
sketch2.addGeometry(Part.Circle(App.Vector(0, 0, 0), App.Vector(0, 0, 1), 2.4), False)
sketch2.addConstraint(Sketcher.Constraint("Coincident", 2, 3, -1, 1))
sketch2.addConstraint(Sketcher.Constraint("Equal", 0, 1))
sketch2.addConstraint(Sketcher.Constraint("Symmetric", 0, 3, 1, 3, -1, 1))
sketch2.addConstraint(Sketcher.Constraint("PointOnObject", 0, 3, -1))
sketch2.addConstraint(Sketcher.Constraint("Diameter", 0, 2.6))
sketch2.addConstraint(Sketcher.Constraint("Diameter", 2, 4.8))
sketch2.addConstraint(Sketcher.Constraint("DistanceX", 1, 3, 0, 3, 9.0))
pocket1 = body.newObject("PartDesign::Pocket", "Pocket")
pocket1.Profile = sketch2
pocket1.Type = "ThroughAll"
pocket1.Midplane = True

doc.recompute()
